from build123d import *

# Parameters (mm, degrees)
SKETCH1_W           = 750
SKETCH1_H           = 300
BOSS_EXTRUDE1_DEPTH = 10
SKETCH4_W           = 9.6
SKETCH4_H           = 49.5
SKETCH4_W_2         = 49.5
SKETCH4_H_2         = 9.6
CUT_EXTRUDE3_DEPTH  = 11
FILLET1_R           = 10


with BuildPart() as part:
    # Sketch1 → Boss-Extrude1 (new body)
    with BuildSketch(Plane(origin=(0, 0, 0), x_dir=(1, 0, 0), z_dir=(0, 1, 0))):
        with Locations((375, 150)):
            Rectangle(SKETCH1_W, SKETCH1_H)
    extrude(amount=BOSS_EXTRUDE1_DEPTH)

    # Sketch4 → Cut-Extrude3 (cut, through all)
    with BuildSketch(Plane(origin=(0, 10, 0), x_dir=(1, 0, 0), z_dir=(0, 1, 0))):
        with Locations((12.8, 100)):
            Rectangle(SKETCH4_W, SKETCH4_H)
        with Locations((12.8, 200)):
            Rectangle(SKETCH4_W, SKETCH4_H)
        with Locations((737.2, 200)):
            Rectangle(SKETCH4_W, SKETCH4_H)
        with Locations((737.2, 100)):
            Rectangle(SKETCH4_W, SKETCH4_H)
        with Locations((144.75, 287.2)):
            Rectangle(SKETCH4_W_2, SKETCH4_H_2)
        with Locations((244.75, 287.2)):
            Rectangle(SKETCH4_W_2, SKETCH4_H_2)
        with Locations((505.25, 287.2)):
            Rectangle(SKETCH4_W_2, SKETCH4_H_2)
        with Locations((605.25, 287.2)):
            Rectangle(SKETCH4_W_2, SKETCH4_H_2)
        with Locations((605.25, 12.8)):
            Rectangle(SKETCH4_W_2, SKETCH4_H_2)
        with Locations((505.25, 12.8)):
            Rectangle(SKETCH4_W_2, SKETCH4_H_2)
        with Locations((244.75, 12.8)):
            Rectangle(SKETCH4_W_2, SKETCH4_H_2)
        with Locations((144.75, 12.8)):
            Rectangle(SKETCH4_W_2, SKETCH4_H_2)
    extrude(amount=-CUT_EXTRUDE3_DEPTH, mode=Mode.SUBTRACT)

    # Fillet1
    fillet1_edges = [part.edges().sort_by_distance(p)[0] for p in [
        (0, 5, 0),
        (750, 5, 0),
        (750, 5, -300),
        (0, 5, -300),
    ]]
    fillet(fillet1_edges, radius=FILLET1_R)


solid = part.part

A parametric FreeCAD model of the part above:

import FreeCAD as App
import Part
import Sketcher
from FreeCAD import Vector


def edges_at(feature, points):
    """Names of the edges that pass closest to the given points."""
    edges = feature.Shape.Edges
    near = lambda p: min(range(len(edges)), key=lambda i: edges[i].distToShape(Part.Vertex(*p))[0])
    return sorted({f"Edge{near(p) + 1}" for p in points})

doc = App.newDocument("Part")
params = doc.addObject("Spreadsheet::Sheet", "Params")
for row, (alias, value) in enumerate([
    ("sketch1_width", "750 mm"),
    ("sketch1_height", "300 mm"),
    ("pad1_length", "10 mm"),
    ("sketch2_width", "9.6 mm"),
    ("sketch2_width2", "49.5 mm"),
    ("fillet_radius", "10 mm"),
], start=1):
    params.set(f"A{row}", alias)
    params.set(f"B{row}", "=" + value)
    params.setAlias(f"B{row}", alias)

body = doc.addObject("PartDesign::Body", "Body")

# Sketch on XZ plane
sketch1 = body.newObject("Sketcher::SketchObject", "Sketch")
sketch1.AttachmentSupport = (doc.getObject("XZ_Plane"), [""])
sketch1.MapMode = "FlatFace"
sketch1.addGeometry([
    Part.LineSegment(Vector(0, -300, 0), Vector(0, 0, 0)),
    Part.LineSegment(Vector(0, 0, 0), Vector(750, 0, 0)),
    Part.LineSegment(Vector(750, 0, 0), Vector(750, -300, 0)),
    Part.LineSegment(Vector(750, -300, 0), Vector(0, -300, 0)),
], False)
sketch1.addConstraint([
    Sketcher.Constraint("Coincident", 0, 2, 1, 1),
    Sketcher.Constraint("Coincident", 1, 2, 2, 1),
    Sketcher.Constraint("Coincident", 2, 2, 3, 1),
    Sketcher.Constraint("Coincident", 3, 2, 0, 1),
    Sketcher.Constraint("Vertical", 0),
    Sketcher.Constraint("Horizontal", 1),
    Sketcher.Constraint("Vertical", 2),
    Sketcher.Constraint("Horizontal", 3),
    Sketcher.Constraint("Coincident", 0, 2, -1, 1),
    Sketcher.Constraint("DistanceX", 1, 1, 1, 2, 750.0),
    Sketcher.Constraint("DistanceY", 0, 1, 0, 2, 300.0),
])
sketch1.setExpression("Constraints[9]", "Params.sketch1_width")
sketch1.setExpression("Constraints[10]", "Params.sketch1_height")
pad1 = body.newObject("PartDesign::Pad", "Pad")
pad1.Profile = sketch1
pad1.setExpression("Length", "Params.pad1_length")
pad1.Reversed = True

# Sketch on XZ plane
sketch2 = body.newObject("Sketcher::SketchObject", "Sketch001")
sketch2.AttachmentSupport = (doc.getObject("XZ_Plane"), [""])
sketch2.MapMode = "FlatFace"
sketch2.AttachmentOffset = App.Placement(Vector(0, 0, -10), App.Rotation())
sketch2.addGeometry([
    Part.LineSegment(Vector(8, -124.75, 0), Vector(8, -75.25, 0)),  # 0
    Part.LineSegment(Vector(8, -75.25, 0), Vector(17.6, -75.25, 0)),  # 1
    Part.LineSegment(Vector(17.6, -75.25, 0), Vector(17.6, -124.75, 0)),  # 2
    Part.LineSegment(Vector(17.6, -124.75, 0), Vector(8, -124.75, 0)),  # 3
    Part.LineSegment(Vector(8, -224.75, 0), Vector(8, -175.25, 0)),  # 4
    Part.LineSegment(Vector(8, -175.25, 0), Vector(17.6, -175.25, 0)),  # 5
    Part.LineSegment(Vector(17.6, -175.25, 0), Vector(17.6, -224.75, 0)),  # 6
    Part.LineSegment(Vector(17.6, -224.75, 0), Vector(8, -224.75, 0)),  # 7
    Part.LineSegment(Vector(732.4, -224.75, 0), Vector(732.4, -175.25, 0)),  # 8
    Part.LineSegment(Vector(732.4, -175.25, 0), Vector(742, -175.25, 0)),  # 9
    Part.LineSegment(Vector(742, -175.25, 0), Vector(742, -224.75, 0)),  # 10
    Part.LineSegment(Vector(742, -224.75, 0), Vector(732.4, -224.75, 0)),  # 11
    Part.LineSegment(Vector(732.4, -124.75, 0), Vector(732.4, -75.25, 0)),  # 12
    Part.LineSegment(Vector(732.4, -75.25, 0), Vector(742, -75.25, 0)),  # 13
    Part.LineSegment(Vector(742, -75.25, 0), Vector(742, -124.75, 0)),  # 14
    Part.LineSegment(Vector(742, -124.75, 0), Vector(732.4, -124.75, 0)),  # 15
    Part.LineSegment(Vector(120, -292, 0), Vector(120, -282.4, 0)),  # 16
    Part.LineSegment(Vector(120, -282.4, 0), Vector(169.5, -282.4, 0)),  # 17
    Part.LineSegment(Vector(169.5, -282.4, 0), Vector(169.5, -292, 0)),  # 18
    Part.LineSegment(Vector(169.5, -292, 0), Vector(120, -292, 0)),  # 19
    Part.LineSegment(Vector(220, -292, 0), Vector(220, -282.4, 0)),  # 20
    Part.LineSegment(Vector(220, -282.4, 0), Vector(269.5, -282.4, 0)),  # 21
    Part.LineSegment(Vector(269.5, -282.4, 0), Vector(269.5, -292, 0)),  # 22
    Part.LineSegment(Vector(269.5, -292, 0), Vector(220, -292, 0)),  # 23
    Part.LineSegment(Vector(480.5, -292, 0), Vector(480.5, -282.4, 0)),  # 24
    Part.LineSegment(Vector(480.5, -282.4, 0), Vector(530, -282.4, 0)),  # 25
    Part.LineSegment(Vector(530, -282.4, 0), Vector(530, -292, 0)),  # 26
    Part.LineSegment(Vector(530, -292, 0), Vector(480.5, -292, 0)),  # 27
    Part.LineSegment(Vector(580.5, -292, 0), Vector(580.5, -282.4, 0)),  # 28
    Part.LineSegment(Vector(580.5, -282.4, 0), Vector(630, -282.4, 0)),  # 29
    Part.LineSegment(Vector(630, -282.4, 0), Vector(630, -292, 0)),  # 30
    Part.LineSegment(Vector(630, -292, 0), Vector(580.5, -292, 0)),  # 31
    Part.LineSegment(Vector(580.5, -17.6, 0), Vector(580.5, -8, 0)),  # 32
    Part.LineSegment(Vector(580.5, -8, 0), Vector(630, -8, 0)),  # 33
    Part.LineSegment(Vector(630, -8, 0), Vector(630, -17.6, 0)),  # 34
    Part.LineSegment(Vector(630, -17.6, 0), Vector(580.5, -17.6, 0)),  # 35
    Part.LineSegment(Vector(480.5, -17.6, 0), Vector(480.5, -8, 0)),  # 36
    Part.LineSegment(Vector(480.5, -8, 0), Vector(530, -8, 0)),  # 37
    Part.LineSegment(Vector(530, -8, 0), Vector(530, -17.6, 0)),  # 38
    Part.LineSegment(Vector(530, -17.6, 0), Vector(480.5, -17.6, 0)),  # 39
    Part.LineSegment(Vector(220, -17.6, 0), Vector(220, -8, 0)),  # 40
    Part.LineSegment(Vector(220, -8, 0), Vector(269.5, -8, 0)),  # 41
    Part.LineSegment(Vector(269.5, -8, 0), Vector(269.5, -17.6, 0)),  # 42
    Part.LineSegment(Vector(269.5, -17.6, 0), Vector(220, -17.6, 0)),  # 43
    Part.LineSegment(Vector(120, -17.6, 0), Vector(120, -8, 0)),  # 44
    Part.LineSegment(Vector(120, -8, 0), Vector(169.5, -8, 0)),  # 45
    Part.LineSegment(Vector(169.5, -8, 0), Vector(169.5, -17.6, 0)),  # 46
    Part.LineSegment(Vector(169.5, -17.6, 0), Vector(120, -17.6, 0)),  # 47
], False)
sketch2.addConstraint([
    Sketcher.Constraint("Coincident", 0, 2, 1, 1),
    Sketcher.Constraint("Coincident", 1, 2, 2, 1),
    Sketcher.Constraint("Coincident", 2, 2, 3, 1),
    Sketcher.Constraint("Coincident", 3, 2, 0, 1),
    Sketcher.Constraint("Coincident", 4, 2, 5, 1),
    Sketcher.Constraint("Coincident", 5, 2, 6, 1),
    Sketcher.Constraint("Coincident", 6, 2, 7, 1),
    Sketcher.Constraint("Coincident", 7, 2, 4, 1),
    Sketcher.Constraint("Coincident", 8, 2, 9, 1),
    Sketcher.Constraint("Coincident", 9, 2, 10, 1),
    Sketcher.Constraint("Coincident", 10, 2, 11, 1),
    Sketcher.Constraint("Coincident", 11, 2, 8, 1),
    Sketcher.Constraint("Coincident", 12, 2, 13, 1),
    Sketcher.Constraint("Coincident", 13, 2, 14, 1),
    Sketcher.Constraint("Coincident", 14, 2, 15, 1),
    Sketcher.Constraint("Coincident", 15, 2, 12, 1),
    Sketcher.Constraint("Coincident", 16, 2, 17, 1),
    Sketcher.Constraint("Coincident", 17, 2, 18, 1),
    Sketcher.Constraint("Coincident", 18, 2, 19, 1),
    Sketcher.Constraint("Coincident", 19, 2, 16, 1),
    Sketcher.Constraint("Coincident", 20, 2, 21, 1),
    Sketcher.Constraint("Coincident", 21, 2, 22, 1),
    Sketcher.Constraint("Coincident", 22, 2, 23, 1),
    Sketcher.Constraint("Coincident", 23, 2, 20, 1),
    Sketcher.Constraint("Coincident", 24, 2, 25, 1),
    Sketcher.Constraint("Coincident", 25, 2, 26, 1),
    Sketcher.Constraint("Coincident", 26, 2, 27, 1),
    Sketcher.Constraint("Coincident", 27, 2, 24, 1),
    Sketcher.Constraint("Coincident", 28, 2, 29, 1),
    Sketcher.Constraint("Coincident", 29, 2, 30, 1),
    Sketcher.Constraint("Coincident", 30, 2, 31, 1),
    Sketcher.Constraint("Coincident", 31, 2, 28, 1),
    Sketcher.Constraint("Coincident", 32, 2, 33, 1),
    Sketcher.Constraint("Coincident", 33, 2, 34, 1),
    Sketcher.Constraint("Coincident", 34, 2, 35, 1),
    Sketcher.Constraint("Coincident", 35, 2, 32, 1),
    Sketcher.Constraint("Coincident", 36, 2, 37, 1),
    Sketcher.Constraint("Coincident", 37, 2, 38, 1),
    Sketcher.Constraint("Coincident", 38, 2, 39, 1),
    Sketcher.Constraint("Coincident", 39, 2, 36, 1),
    Sketcher.Constraint("Coincident", 40, 2, 41, 1),
    Sketcher.Constraint("Coincident", 41, 2, 42, 1),
    Sketcher.Constraint("Coincident", 42, 2, 43, 1),
    Sketcher.Constraint("Coincident", 43, 2, 40, 1),
    Sketcher.Constraint("Coincident", 44, 2, 45, 1),
    Sketcher.Constraint("Coincident", 45, 2, 46, 1),
    Sketcher.Constraint("Coincident", 46, 2, 47, 1),
    Sketcher.Constraint("Coincident", 47, 2, 44, 1),
    Sketcher.Constraint("Vertical", 0),
    Sketcher.Constraint("Horizontal", 1),
    Sketcher.Constraint("Vertical", 2),
    Sketcher.Constraint("Horizontal", 3),
    Sketcher.Constraint("Vertical", 4),
    Sketcher.Constraint("Horizontal", 5),
    Sketcher.Constraint("Vertical", 6),
    Sketcher.Constraint("Horizontal", 7),
    Sketcher.Constraint("Vertical", 8),
    Sketcher.Constraint("Horizontal", 9),
    Sketcher.Constraint("Vertical", 10),
    Sketcher.Constraint("Horizontal", 11),
    Sketcher.Constraint("Vertical", 12),
    Sketcher.Constraint("Horizontal", 13),
    Sketcher.Constraint("Vertical", 14),
    Sketcher.Constraint("Horizontal", 15),
    Sketcher.Constraint("Vertical", 16),
    Sketcher.Constraint("Horizontal", 17),
    Sketcher.Constraint("Vertical", 18),
    Sketcher.Constraint("Horizontal", 19),
    Sketcher.Constraint("Vertical", 20),
    Sketcher.Constraint("Horizontal", 21),
    Sketcher.Constraint("Vertical", 22),
    Sketcher.Constraint("Horizontal", 23),
    Sketcher.Constraint("Vertical", 24),
    Sketcher.Constraint("Horizontal", 25),
    Sketcher.Constraint("Vertical", 26),
    Sketcher.Constraint("Horizontal", 27),
    Sketcher.Constraint("Vertical", 28),
    Sketcher.Constraint("Horizontal", 29),
    Sketcher.Constraint("Vertical", 30),
    Sketcher.Constraint("Horizontal", 31),
    Sketcher.Constraint("Vertical", 32),
    Sketcher.Constraint("Horizontal", 33),
    Sketcher.Constraint("Vertical", 34),
    Sketcher.Constraint("Horizontal", 35),
    Sketcher.Constraint("Vertical", 36),
    Sketcher.Constraint("Horizontal", 37),
    Sketcher.Constraint("Vertical", 38),
    Sketcher.Constraint("Horizontal", 39),
    Sketcher.Constraint("Vertical", 40),
    Sketcher.Constraint("Horizontal", 41),
    Sketcher.Constraint("Vertical", 42),
    Sketcher.Constraint("Horizontal", 43),
    Sketcher.Constraint("Vertical", 44),
    Sketcher.Constraint("Horizontal", 45),
    Sketcher.Constraint("Vertical", 46),
    Sketcher.Constraint("Horizontal", 47),
    Sketcher.Constraint("Horizontal", 5, 2, 8, 2),
    Sketcher.Constraint("Horizontal", 7, 2, 10, 2),
    Sketcher.Constraint("Horizontal", 1, 2, 12, 2),
    Sketcher.Constraint("Horizontal", 3, 2, 14, 2),
    Sketcher.Constraint("Horizontal", 17, 2, 20, 2),
    Sketcher.Constraint("Horizontal", 19, 2, 22, 2),
    Sketcher.Constraint("Horizontal", 21, 2, 24, 2),
    Sketcher.Constraint("Horizontal", 23, 2, 26, 2),
    Sketcher.Constraint("Horizontal", 25, 2, 28, 2),
    Sketcher.Constraint("Horizontal", 27, 2, 30, 2),
    Sketcher.Constraint("Horizontal", 33, 2, 36, 2),
    Sketcher.Constraint("Horizontal", 35, 2, 38, 2),
    Sketcher.Constraint("Horizontal", 37, 2, 40, 2),
    Sketcher.Constraint("Horizontal", 39, 2, 42, 2),
    Sketcher.Constraint("Horizontal", 41, 2, 44, 2),
    Sketcher.Constraint("Horizontal", 43, 2, 46, 2),
    Sketcher.Constraint("Vertical", 3, 2, 4, 2),
    Sketcher.Constraint("Vertical", 2, 2, 5, 2),
    Sketcher.Constraint("Vertical", 11, 2, 12, 2),
    Sketcher.Constraint("Vertical", 10, 2, 13, 2),
    Sketcher.Constraint("Vertical", 31, 2, 32, 2),
    Sketcher.Constraint("Vertical", 30, 2, 33, 2),
    Sketcher.Constraint("Vertical", 27, 2, 36, 2),
    Sketcher.Constraint("Vertical", 26, 2, 37, 2),
    Sketcher.Constraint("Vertical", 23, 2, 40, 2),
    Sketcher.Constraint("Vertical", 22, 2, 41, 2),
    Sketcher.Constraint("Vertical", 19, 2, 44, 2),
    Sketcher.Constraint("Vertical", 18, 2, 45, 2),
    Sketcher.Constraint("Equal", 7, 9),
    Sketcher.Constraint("Equal", 19, 21),
    Sketcher.Constraint("Equal", 23, 25),
    Sketcher.Constraint("Equal", 27, 29),
    Sketcher.Constraint("Equal", 47, 0),
    Sketcher.Constraint("Equal", 2, 4),
    Sketcher.Constraint("Equal", 15, 16),
    Sketcher.Constraint("Equal", 30, 32),
    Sketcher.Constraint("DistanceX", 1, 1, 1, 2, 9.6),
    Sketcher.Constraint("DistanceX", 17, 1, 17, 2, 49.5),
    Sketcher.Constraint("DistanceX", -1, 1, 0, 2, 8.0),
    Sketcher.Constraint("DistanceX", -1, 1, 9, 2, 742.0),
    Sketcher.Constraint("DistanceX", -1, 1, 16, 2, 120.0),
    Sketcher.Constraint("DistanceY", 18, 2, -1, 1, 292.0),
    Sketcher.Constraint("DistanceX", -1, 1, 20, 2, 220.0),
    Sketcher.Constraint("DistanceX", -1, 1, 25, 2, 530.0),
    Sketcher.Constraint("DistanceX", -1, 1, 29, 2, 630.0),
    Sketcher.Constraint("DistanceY", 32, 2, -1, 1, 8.0),
    Sketcher.Constraint("DistanceY", 4, 2, 0, 2, 100.0),
    Sketcher.Constraint("DistanceY", 0, 2, -1, 1, 75.25),
])
sketch2.setExpression("Constraints[132]", "Params.sketch2_width")
sketch2.setExpression("Constraints[133]", "Params.sketch2_width2")
pocket1 = body.newObject("PartDesign::Pocket", "Pocket")
pocket1.Profile = sketch2
pocket1.Type = "ThroughAll"
pocket1.Reversed = True
doc.recompute()

fillet = body.newObject("PartDesign::Fillet", "Fillet")
fillet.Base = (pocket1, edges_at(pocket1, [
    (0, 5, 0),
    (750, 5, 0),
    (750, 5, -300),
    (0, 5, -300),
]))
fillet.setExpression("Radius", "Params.fillet_radius")

doc.recompute()
